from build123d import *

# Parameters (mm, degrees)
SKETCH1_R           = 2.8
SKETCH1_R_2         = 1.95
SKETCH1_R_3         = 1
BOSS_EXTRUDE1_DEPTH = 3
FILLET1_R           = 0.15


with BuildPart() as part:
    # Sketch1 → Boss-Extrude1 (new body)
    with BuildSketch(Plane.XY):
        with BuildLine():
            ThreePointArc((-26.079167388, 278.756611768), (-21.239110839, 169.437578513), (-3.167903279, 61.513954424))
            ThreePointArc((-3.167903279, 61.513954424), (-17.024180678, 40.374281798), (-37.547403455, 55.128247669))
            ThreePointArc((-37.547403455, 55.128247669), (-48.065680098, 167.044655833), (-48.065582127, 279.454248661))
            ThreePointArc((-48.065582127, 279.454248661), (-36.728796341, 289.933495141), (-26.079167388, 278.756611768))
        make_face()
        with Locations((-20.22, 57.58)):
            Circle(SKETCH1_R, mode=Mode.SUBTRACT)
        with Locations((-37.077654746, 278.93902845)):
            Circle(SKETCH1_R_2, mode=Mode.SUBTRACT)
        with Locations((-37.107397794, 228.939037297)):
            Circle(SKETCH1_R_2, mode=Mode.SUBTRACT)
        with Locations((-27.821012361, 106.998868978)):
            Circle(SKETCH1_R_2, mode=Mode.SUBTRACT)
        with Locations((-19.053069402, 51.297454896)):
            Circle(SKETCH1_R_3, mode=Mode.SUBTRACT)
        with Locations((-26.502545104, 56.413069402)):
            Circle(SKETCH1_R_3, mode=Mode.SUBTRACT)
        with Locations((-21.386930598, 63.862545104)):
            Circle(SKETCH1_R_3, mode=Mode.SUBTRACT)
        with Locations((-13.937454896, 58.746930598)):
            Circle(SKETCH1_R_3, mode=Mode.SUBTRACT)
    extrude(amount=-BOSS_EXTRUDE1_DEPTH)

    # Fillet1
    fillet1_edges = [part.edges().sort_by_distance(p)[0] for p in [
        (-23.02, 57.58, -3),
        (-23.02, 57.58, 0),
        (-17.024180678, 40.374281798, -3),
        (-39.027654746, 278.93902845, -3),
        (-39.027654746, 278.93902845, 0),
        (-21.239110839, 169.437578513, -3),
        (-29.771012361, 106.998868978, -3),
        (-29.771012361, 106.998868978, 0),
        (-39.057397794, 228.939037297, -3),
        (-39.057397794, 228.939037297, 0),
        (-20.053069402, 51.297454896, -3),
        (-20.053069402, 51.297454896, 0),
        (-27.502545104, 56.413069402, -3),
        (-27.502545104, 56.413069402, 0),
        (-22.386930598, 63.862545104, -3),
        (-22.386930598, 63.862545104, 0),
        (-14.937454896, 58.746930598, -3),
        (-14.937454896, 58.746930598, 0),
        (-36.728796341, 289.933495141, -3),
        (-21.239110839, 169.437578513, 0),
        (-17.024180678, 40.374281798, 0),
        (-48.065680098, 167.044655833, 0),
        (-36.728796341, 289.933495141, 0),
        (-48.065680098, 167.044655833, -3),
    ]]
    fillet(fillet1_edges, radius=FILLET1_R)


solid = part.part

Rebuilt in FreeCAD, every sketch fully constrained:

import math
import FreeCAD as App
import Part
import Sketcher
Q = App.Units.Quantity


def edges_at(feature, points):
    """Names of the edges that pass closest to the given points."""
    edges = feature.Shape.Edges
    near = lambda p: min(range(len(edges)), key=lambda i: edges[i].distToShape(Part.Vertex(*p))[0])
    return sorted({f"Edge{near(p) + 1}" for p in points})

doc = App.newDocument("Part")
body = doc.addObject("PartDesign::Body", "Body")

# Sketch on XY plane
sketch1 = body.newObject("Sketcher::SketchObject", "Sketch")
sketch1.AttachmentSupport = (doc.getObject("XY_Plane"), [""])
sketch1.MapMode = "FlatFace"
sketch1.addGeometry(Part.ArcOfCircle(Part.Circle(App.Vector(873.797071, 263.831611, 0), App.Vector(0, 0, 1), 900), math.radians(179.049801), math.radians(192.990965)), False)
sketch1.addGeometry(Part.ArcOfCircle(Part.Circle(App.Vector(-37.077655, 278.939028, 0), App.Vector(0, 0, 1), 11), math.radians(-0.950199), math.radians(177.315387)), False)
sketch1.addGeometry(Part.ArcOfCircle(Part.Circle(App.Vector(1150.617405, 223.248408, 0), App.Vector(0, 0, 1), 1200), math.radians(177.315387), math.radians(188.053641)), False)
sketch1.addGeometry(Part.ArcOfCircle(Part.Circle(App.Vector(-20.22, 57.58, 0), App.Vector(0, 0, 1), 17.5), math.radians(-171.946359), math.radians(12.990965)), False)
sketch1.addGeometry(Part.Circle(App.Vector(-13.937455, 58.746931, 0), App.Vector(0, 0, 1), 1), False)
sketch1.addGeometry(Part.Circle(App.Vector(-19.053069, 51.297455, 0), App.Vector(0, 0, 1), 1), False)
sketch1.addGeometry(Part.Circle(App.Vector(-20.22, 57.58, 0), App.Vector(0, 0, 1), 2.8), False)
sketch1.addGeometry(Part.Circle(App.Vector(-21.386931, 63.862545, 0), App.Vector(0, 0, 1), 1), False)
sketch1.addGeometry(Part.Circle(App.Vector(-26.502545, 56.413069, 0), App.Vector(0, 0, 1), 1), False)
sketch1.addGeometry(Part.Circle(App.Vector(-27.821012, 106.998869, 0), App.Vector(0, 0, 1), 1.95), False)
sketch1.addGeometry(Part.Circle(App.Vector(-37.107398, 228.939037, 0), App.Vector(0, 0, 1), 1.95), False)
sketch1.addGeometry(Part.Circle(App.Vector(-37.077655, 278.939028, 0), App.Vector(0, 0, 1), 1.95), False)
sketch1.addConstraint(Sketcher.Constraint("Tangent", 0, 1, 1, 1))
sketch1.addConstraint(Sketcher.Constraint("Tangent", 1, 2, 2, 1))
sketch1.addConstraint(Sketcher.Constraint("Tangent", 2, 2, 3, 1))
sketch1.addConstraint(Sketcher.Constraint("Tangent", 3, 2, 0, 2))
sketch1.addConstraint(Sketcher.Constraint("Coincident", 6, 3, 3, 3))
sketch1.addConstraint(Sketcher.Constraint("Coincident", 11, 3, 1, 3))
sketch1.addConstraint(Sketcher.Constraint("Equal", 4, 5))
sketch1.addConstraint(Sketcher.Constraint("Equal", 5, 7))
sketch1.addConstraint(Sketcher.Constraint("Equal", 7, 8))
sketch1.addConstraint(Sketcher.Constraint("Equal", 9, 10))
sketch1.addConstraint(Sketcher.Constraint("Equal", 10, 11))
sketch1.addConstraint(Sketcher.Constraint("Diameter", 4, Q("2 mm")))
sketch1.addConstraint(Sketcher.Constraint("Radius", 0, Q("900 mm")))
sketch1.addConstraint(Sketcher.Constraint("Radius", 1, Q("11 mm")))
sketch1.addConstraint(Sketcher.Constraint("Radius", 2, Q("1200 mm")))
sketch1.addConstraint(Sketcher.Constraint("Diameter", 6, Q("5.6 mm")))
sketch1.addConstraint(Sketcher.Constraint("Diameter", 9, Q("3.9 mm")))
sketch1.addConstraint(Sketcher.Constraint("Radius", 3, Q("17.5 mm")))
sketch1.addConstraint(Sketcher.Constraint("DistanceX", 3, 3, -1, 1, Q("20.22 mm")))
sketch1.addConstraint(Sketcher.Constraint("DistanceY", -1, 1, 3, 3, Q("57.58 mm")))
sketch1.addConstraint(Sketcher.Constraint("DistanceX", 1, 3, 4, 3, Q("23.1402 mm")))
sketch1.addConstraint(Sketcher.Constraint("DistanceY", 8, 3, 9, 3, Q("50.5858 mm")))
sketch1.addConstraint(Sketcher.Constraint("DistanceY", 5, 3, 3, 2, Q("10.2165 mm")))
sketch1.addConstraint(Sketcher.Constraint("DistanceX", -1, 1, 0, 3, Q("873.797071 mm")))
sketch1.addConstraint(Sketcher.Constraint("DistanceY", -1, 1, 1, 3, Q("278.939028 mm")))
sketch1.addConstraint(Sketcher.Constraint("DistanceY", -1, 1, 4, 3, Q("58.746931 mm")))
sketch1.addConstraint(Sketcher.Constraint("DistanceX", 5, 3, -1, 1, Q("19.053069 mm")))
sketch1.addConstraint(Sketcher.Constraint("DistanceX", 7, 3, -1, 1, Q("21.386931 mm")))
sketch1.addConstraint(Sketcher.Constraint("DistanceY", -1, 1, 8, 3, Q("56.413069 mm")))
sketch1.addConstraint(Sketcher.Constraint("DistanceY", 5, 3, 7, 3, Q("12.56509 mm")))
sketch1.addConstraint(Sketcher.Constraint("DistanceX", 8, 3, 4, 3, Q("12.56509 mm")))
sketch1.addConstraint(Sketcher.Constraint("DistanceX", 9, 3, 7, 3, Q("6.434082 mm")))
sketch1.addConstraint(Sketcher.Constraint("DistanceY", 10, 3, 1, 3, Q("49.999991 mm")))
sketch1.addConstraint(Sketcher.Constraint("DistanceX", 10, 3, 0, 1, Q("11.02823 mm")))
pad1 = body.newObject("PartDesign::Pad", "Pad")
pad1.Profile = sketch1
pad1.Length = 3
pad1.Reversed = True
doc.recompute()

fillet = body.newObject("PartDesign::Fillet", "Fillet")
fillet.Base = (pad1, edges_at(pad1, [
    (-23.02, 57.58, -3),
    (-23.02, 57.58, 0),
    (-17.024, 40.374, -3),
    (-39.028, 278.939, -3),
    (-39.028, 278.939, 0),
    (-21.239, 169.438, -3),
    (-29.771, 106.999, -3),
    (-29.771, 106.999, 0),
    (-39.057, 228.939, -3),
    (-39.057, 228.939, 0),
    (-20.053, 51.297, -3),
    (-20.053, 51.297, 0),
    (-27.503, 56.413, -3),
    (-27.503, 56.413, 0),
    (-22.387, 63.863, -3),
    (-22.387, 63.863, 0),
    (-14.937, 58.747, -3),
    (-14.937, 58.747, 0),
    (-36.729, 289.933, -3),
    (-21.239, 169.438, 0),
    (-17.024, 40.374, 0),
    (-48.066, 167.045, 0),
    (-36.729, 289.933, 0),
    (-48.066, 167.045, -3),
]))
fillet.Radius = 0.15

doc.recompute()
